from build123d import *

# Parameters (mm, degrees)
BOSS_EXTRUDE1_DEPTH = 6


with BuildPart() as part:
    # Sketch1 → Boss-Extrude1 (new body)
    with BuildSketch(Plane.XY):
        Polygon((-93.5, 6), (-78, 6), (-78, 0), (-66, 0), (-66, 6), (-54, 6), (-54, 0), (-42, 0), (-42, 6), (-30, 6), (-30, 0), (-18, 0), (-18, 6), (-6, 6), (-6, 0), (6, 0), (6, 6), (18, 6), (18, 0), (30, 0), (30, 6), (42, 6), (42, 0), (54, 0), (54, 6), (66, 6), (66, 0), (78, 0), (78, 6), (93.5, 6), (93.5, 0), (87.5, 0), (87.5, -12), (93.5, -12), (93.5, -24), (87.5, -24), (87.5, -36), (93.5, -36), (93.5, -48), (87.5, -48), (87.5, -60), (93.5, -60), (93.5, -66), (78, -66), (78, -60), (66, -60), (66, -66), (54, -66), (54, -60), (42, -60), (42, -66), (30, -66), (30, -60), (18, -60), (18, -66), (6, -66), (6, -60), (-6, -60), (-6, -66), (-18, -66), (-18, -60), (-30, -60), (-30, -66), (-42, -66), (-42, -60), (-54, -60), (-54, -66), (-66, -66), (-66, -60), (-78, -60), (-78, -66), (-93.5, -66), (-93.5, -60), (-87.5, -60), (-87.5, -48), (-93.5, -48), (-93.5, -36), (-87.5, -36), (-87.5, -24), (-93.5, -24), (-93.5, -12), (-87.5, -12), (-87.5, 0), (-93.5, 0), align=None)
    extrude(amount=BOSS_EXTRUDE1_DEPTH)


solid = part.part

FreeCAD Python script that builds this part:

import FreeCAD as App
import Part
import Sketcher
Q = App.Units.Quantity

doc = App.newDocument("Part")
body = doc.addObject("PartDesign::Body", "Body")

# Sketch on XY plane
sketch1 = doc.addObject("Sketcher::SketchObject", "Sketch")
body.addObject(sketch1)
sketch1.AttachmentSupport = (doc.XY_Plane, [""])
sketch1.MapMode = "FlatFace"
sketch1.addGeometry([
    Part.LineSegment(App.Vector(-78, 6, 0), App.Vector(-94, 6, 0)),  # 0
    Part.LineSegment(App.Vector(-94, 6, 0), App.Vector(-94, 0, 0)),  # 1
    Part.LineSegment(App.Vector(-94, 0, 0), App.Vector(-88, 0, 0)),  # 2
    Part.LineSegment(App.Vector(-88, 0, 0), App.Vector(-88, -12, 0)),  # 3
    Part.LineSegment(App.Vector(-88, -12, 0), App.Vector(-94, -12, 0)),  # 4
    Part.LineSegment(App.Vector(-94, -12, 0), App.Vector(-94, -24, 0)),  # 5
    Part.LineSegment(App.Vector(-94, -24, 0), App.Vector(-88, -24, 0)),  # 6
    Part.LineSegment(App.Vector(-88, -24, 0), App.Vector(-88, -36, 0)),  # 7
    Part.LineSegment(App.Vector(-88, -36, 0), App.Vector(-94, -36, 0)),  # 8
    Part.LineSegment(App.Vector(-94, -36, 0), App.Vector(-94, -48, 0)),  # 9
    Part.LineSegment(App.Vector(-94, -48, 0), App.Vector(-88, -48, 0)),  # 10
    Part.LineSegment(App.Vector(-88, -48, 0), App.Vector(-88, -60, 0)),  # 11
    Part.LineSegment(App.Vector(-88, -60, 0), App.Vector(-94, -60, 0)),  # 12
    Part.LineSegment(App.Vector(-94, -60, 0), App.Vector(-94, -66, 0)),  # 13
    Part.LineSegment(App.Vector(-94, -66, 0), App.Vector(-78, -66, 0)),  # 14
    Part.LineSegment(App.Vector(-78, -66, 0), App.Vector(-78, -60, 0)),  # 15
    Part.LineSegment(App.Vector(-78, -60, 0), App.Vector(-66, -60, 0)),  # 16
    Part.LineSegment(App.Vector(-66, -60, 0), App.Vector(-66, -66, 0)),  # 17
    Part.LineSegment(App.Vector(-66, -66, 0), App.Vector(-54, -66, 0)),  # 18
    Part.LineSegment(App.Vector(-54, -66, 0), App.Vector(-54, -60, 0)),  # 19
    Part.LineSegment(App.Vector(-54, -60, 0), App.Vector(-42, -60, 0)),  # 20
    Part.LineSegment(App.Vector(-42, -60, 0), App.Vector(-42, -66, 0)),  # 21
    Part.LineSegment(App.Vector(-42, -66, 0), App.Vector(-30, -66, 0)),  # 22
    Part.LineSegment(App.Vector(-30, -66, 0), App.Vector(-30, -60, 0)),  # 23
    Part.LineSegment(App.Vector(-30, -60, 0), App.Vector(-18, -60, 0)),  # 24
    Part.LineSegment(App.Vector(-18, -60, 0), App.Vector(-18, -66, 0)),  # 25
    Part.LineSegment(App.Vector(-18, -66, 0), App.Vector(-6, -66, 0)),  # 26
    Part.LineSegment(App.Vector(-6, -66, 0), App.Vector(-6, -60, 0)),  # 27
    Part.LineSegment(App.Vector(-6, -60, 0), App.Vector(6, -60, 0)),  # 28
    Part.LineSegment(App.Vector(6, -60, 0), App.Vector(6, -66, 0)),  # 29
    Part.LineSegment(App.Vector(6, -66, 0), App.Vector(18, -66, 0)),  # 30
    Part.LineSegment(App.Vector(18, -66, 0), App.Vector(18, -60, 0)),  # 31
    Part.LineSegment(App.Vector(18, -60, 0), App.Vector(30, -60, 0)),  # 32
    Part.LineSegment(App.Vector(30, -60, 0), App.Vector(30, -66, 0)),  # 33
    Part.LineSegment(App.Vector(30, -66, 0), App.Vector(42, -66, 0)),  # 34
    Part.LineSegment(App.Vector(42, -66, 0), App.Vector(42, -60, 0)),  # 35
    Part.LineSegment(App.Vector(42, -60, 0), App.Vector(54, -60, 0)),  # 36
    Part.LineSegment(App.Vector(54, -60, 0), App.Vector(54, -66, 0)),  # 37
    Part.LineSegment(App.Vector(54, -66, 0), App.Vector(66, -66, 0)),  # 38
    Part.LineSegment(App.Vector(66, -66, 0), App.Vector(66, -60, 0)),  # 39
    Part.LineSegment(App.Vector(66, -60, 0), App.Vector(78, -60, 0)),  # 40
    Part.LineSegment(App.Vector(78, -60, 0), App.Vector(78, -66, 0)),  # 41
    Part.LineSegment(App.Vector(78, -66, 0), App.Vector(94, -66, 0)),  # 42
    Part.LineSegment(App.Vector(94, -66, 0), App.Vector(94, -60, 0)),  # 43
    Part.LineSegment(App.Vector(94, -60, 0), App.Vector(88, -60, 0)),  # 44
    Part.LineSegment(App.Vector(88, -60, 0), App.Vector(88, -48, 0)),  # 45
    Part.LineSegment(App.Vector(88, -48, 0), App.Vector(94, -48, 0)),  # 46
    Part.LineSegment(App.Vector(94, -48, 0), App.Vector(94, -36, 0)),  # 47
    Part.LineSegment(App.Vector(94, -36, 0), App.Vector(88, -36, 0)),  # 48
    Part.LineSegment(App.Vector(88, -36, 0), App.Vector(88, -24, 0)),  # 49
    Part.LineSegment(App.Vector(88, -24, 0), App.Vector(94, -24, 0)),  # 50
    Part.LineSegment(App.Vector(94, -24, 0), App.Vector(94, -12, 0)),  # 51
    Part.LineSegment(App.Vector(94, -12, 0), App.Vector(88, -12, 0)),  # 52
    Part.LineSegment(App.Vector(88, -12, 0), App.Vector(88, 0, 0)),  # 53
    Part.LineSegment(App.Vector(88, 0, 0), App.Vector(94, 0, 0)),  # 54
    Part.LineSegment(App.Vector(94, 0, 0), App.Vector(94, 6, 0)),  # 55
    Part.LineSegment(App.Vector(94, 6, 0), App.Vector(78, 6, 0)),  # 56
    Part.LineSegment(App.Vector(78, 6, 0), App.Vector(78, 0, 0)),  # 57
    Part.LineSegment(App.Vector(78, 0, 0), App.Vector(66, 0, 0)),  # 58
    Part.LineSegment(App.Vector(66, 0, 0), App.Vector(66, 6, 0)),  # 59
    Part.LineSegment(App.Vector(66, 6, 0), App.Vector(54, 6, 0)),  # 60
    Part.LineSegment(App.Vector(54, 6, 0), App.Vector(54, 0, 0)),  # 61
    Part.LineSegment(App.Vector(54, 0, 0), App.Vector(42, 0, 0)),  # 62
    Part.LineSegment(App.Vector(42, 0, 0), App.Vector(42, 6, 0)),  # 63
    Part.LineSegment(App.Vector(42, 6, 0), App.Vector(30, 6, 0)),  # 64
    Part.LineSegment(App.Vector(30, 6, 0), App.Vector(30, 0, 0)),  # 65
    Part.LineSegment(App.Vector(30, 0, 0), App.Vector(18, 0, 0)),  # 66
    Part.LineSegment(App.Vector(18, 0, 0), App.Vector(18, 6, 0)),  # 67
    Part.LineSegment(App.Vector(18, 6, 0), App.Vector(6, 6, 0)),  # 68
    Part.LineSegment(App.Vector(6, 6, 0), App.Vector(6, 0, 0)),  # 69
    Part.LineSegment(App.Vector(6, 0, 0), App.Vector(-6, 0, 0)),  # 70
    Part.LineSegment(App.Vector(-6, 0, 0), App.Vector(-6, 6, 0)),  # 71
    Part.LineSegment(App.Vector(-6, 6, 0), App.Vector(-18, 6, 0)),  # 72
    Part.LineSegment(App.Vector(-18, 6, 0), App.Vector(-18, 0, 0)),  # 73
    Part.LineSegment(App.Vector(-18, 0, 0), App.Vector(-30, 0, 0)),  # 74
    Part.LineSegment(App.Vector(-30, 0, 0), App.Vector(-30, 6, 0)),  # 75
    Part.LineSegment(App.Vector(-30, 6, 0), App.Vector(-42, 6, 0)),  # 76
    Part.LineSegment(App.Vector(-42, 6, 0), App.Vector(-42, 0, 0)),  # 77
    Part.LineSegment(App.Vector(-42, 0, 0), App.Vector(-54, 0, 0)),  # 78
    Part.LineSegment(App.Vector(-54, 0, 0), App.Vector(-54, 6, 0)),  # 79
    Part.LineSegment(App.Vector(-54, 6, 0), App.Vector(-66, 6, 0)),  # 80
    Part.LineSegment(App.Vector(-66, 6, 0), App.Vector(-66, 0, 0)),  # 81
    Part.LineSegment(App.Vector(-66, 0, 0), App.Vector(-78, 0, 0)),  # 82
    Part.LineSegment(App.Vector(-78, 0, 0), App.Vector(-78, 6, 0)),  # 83
], False)
sketch1.addConstraint([
    Sketcher.Constraint("Coincident", 0, 2, 1, 1),
    Sketcher.Constraint("Coincident", 1, 2, 2, 1),
    Sketcher.Constraint("Coincident", 2, 2, 3, 1),
    Sketcher.Constraint("Coincident", 3, 2, 4, 1),
    Sketcher.Constraint("Coincident", 4, 2, 5, 1),
    Sketcher.Constraint("Coincident", 5, 2, 6, 1),
    Sketcher.Constraint("Coincident", 6, 2, 7, 1),
    Sketcher.Constraint("Coincident", 7, 2, 8, 1),
    Sketcher.Constraint("Coincident", 8, 2, 9, 1),
    Sketcher.Constraint("Coincident", 9, 2, 10, 1),
    Sketcher.Constraint("Coincident", 10, 2, 11, 1),
    Sketcher.Constraint("Coincident", 11, 2, 12, 1),
    Sketcher.Constraint("Coincident", 12, 2, 13, 1),
    Sketcher.Constraint("Coincident", 13, 2, 14, 1),
    Sketcher.Constraint("Coincident", 14, 2, 15, 1),
    Sketcher.Constraint("Coincident", 15, 2, 16, 1),
    Sketcher.Constraint("Coincident", 16, 2, 17, 1),
    Sketcher.Constraint("Coincident", 17, 2, 18, 1),
    Sketcher.Constraint("Coincident", 18, 2, 19, 1),
    Sketcher.Constraint("Coincident", 19, 2, 20, 1),
    Sketcher.Constraint("Coincident", 20, 2, 21, 1),
    Sketcher.Constraint("Coincident", 21, 2, 22, 1),
    Sketcher.Constraint("Coincident", 22, 2, 23, 1),
    Sketcher.Constraint("Coincident", 23, 2, 24, 1),
    Sketcher.Constraint("Coincident", 24, 2, 25, 1),
    Sketcher.Constraint("Coincident", 25, 2, 26, 1),
    Sketcher.Constraint("Coincident", 26, 2, 27, 1),
    Sketcher.Constraint("Coincident", 27, 2, 28, 1),
    Sketcher.Constraint("Coincident", 28, 2, 29, 1),
    Sketcher.Constraint("Coincident", 29, 2, 30, 1),
    Sketcher.Constraint("Coincident", 30, 2, 31, 1),
    Sketcher.Constraint("Coincident", 31, 2, 32, 1),
    Sketcher.Constraint("Coincident", 32, 2, 33, 1),
    Sketcher.Constraint("Coincident", 33, 2, 34, 1),
    Sketcher.Constraint("Coincident", 34, 2, 35, 1),
    Sketcher.Constraint("Coincident", 35, 2, 36, 1),
    Sketcher.Constraint("Coincident", 36, 2, 37, 1),
    Sketcher.Constraint("Coincident", 37, 2, 38, 1),
    Sketcher.Constraint("Coincident", 38, 2, 39, 1),
    Sketcher.Constraint("Coincident", 39, 2, 40, 1),
    Sketcher.Constraint("Coincident", 40, 2, 41, 1),
    Sketcher.Constraint("Coincident", 41, 2, 42, 1),
    Sketcher.Constraint("Coincident", 42, 2, 43, 1),
    Sketcher.Constraint("Coincident", 43, 2, 44, 1),
    Sketcher.Constraint("Coincident", 44, 2, 45, 1),
    Sketcher.Constraint("Coincident", 45, 2, 46, 1),
    Sketcher.Constraint("Coincident", 46, 2, 47, 1),
    Sketcher.Constraint("Coincident", 47, 2, 48, 1),
    Sketcher.Constraint("Coincident", 48, 2, 49, 1),
    Sketcher.Constraint("Coincident", 49, 2, 50, 1),
    Sketcher.Constraint("Coincident", 50, 2, 51, 1),
    Sketcher.Constraint("Coincident", 51, 2, 52, 1),
    Sketcher.Constraint("Coincident", 52, 2, 53, 1),
    Sketcher.Constraint("Coincident", 53, 2, 54, 1),
    Sketcher.Constraint("Coincident", 54, 2, 55, 1),
    Sketcher.Constraint("Coincident", 55, 2, 56, 1),
    Sketcher.Constraint("Coincident", 56, 2, 57, 1),
    Sketcher.Constraint("Coincident", 57, 2, 58, 1),
    Sketcher.Constraint("Coincident", 58, 2, 59, 1),
    Sketcher.Constraint("Coincident", 59, 2, 60, 1),
    Sketcher.Constraint("Coincident", 60, 2, 61, 1),
    Sketcher.Constraint("Coincident", 61, 2, 62, 1),
    Sketcher.Constraint("Coincident", 62, 2, 63, 1),
    Sketcher.Constraint("Coincident", 63, 2, 64, 1),
    Sketcher.Constraint("Coincident", 64, 2, 65, 1),
    Sketcher.Constraint("Coincident", 65, 2, 66, 1),
    Sketcher.Constraint("Coincident", 66, 2, 67, 1),
    Sketcher.Constraint("Coincident", 67, 2, 68, 1),
    Sketcher.Constraint("Coincident", 68, 2, 69, 1),
    Sketcher.Constraint("Coincident", 69, 2, 70, 1),
    Sketcher.Constraint("Coincident", 70, 2, 71, 1),
    Sketcher.Constraint("Coincident", 71, 2, 72, 1),
    Sketcher.Constraint("Coincident", 72, 2, 73, 1),
    Sketcher.Constraint("Coincident", 73, 2, 74, 1),
    Sketcher.Constraint("Coincident", 74, 2, 75, 1),
    Sketcher.Constraint("Coincident", 75, 2, 76, 1),
    Sketcher.Constraint("Coincident", 76, 2, 77, 1),
    Sketcher.Constraint("Coincident", 77, 2, 78, 1),
    Sketcher.Constraint("Coincident", 78, 2, 79, 1),
    Sketcher.Constraint("Coincident", 79, 2, 80, 1),
    Sketcher.Constraint("Coincident", 80, 2, 81, 1),
    Sketcher.Constraint("Coincident", 81, 2, 82, 1),
    Sketcher.Constraint("Coincident", 82, 2, 83, 1),
    Sketcher.Constraint("Coincident", 83, 2, 0, 1),
    Sketcher.Constraint("Horizontal", 0),
    Sketcher.Constraint("Vertical", 1),
    Sketcher.Constraint("Horizontal", 2),
    Sketcher.Constraint("Vertical", 3),
    Sketcher.Constraint("Horizontal", 4),
    Sketcher.Constraint("Vertical", 5),
    Sketcher.Constraint("Horizontal", 6),
    Sketcher.Constraint("Vertical", 7),
    Sketcher.Constraint("Horizontal", 8),
    Sketcher.Constraint("Vertical", 9),
    Sketcher.Constraint("Horizontal", 10),
    Sketcher.Constraint("Vertical", 11),
    Sketcher.Constraint("Horizontal", 12),
    Sketcher.Constraint("Vertical", 13),
    Sketcher.Constraint("Horizontal", 14),
    Sketcher.Constraint("Vertical", 15),
    Sketcher.Constraint("Horizontal", 16),
    Sketcher.Constraint("Vertical", 17),
    Sketcher.Constraint("Horizontal", 18),
    Sketcher.Constraint("Vertical", 19),
    Sketcher.Constraint("Horizontal", 20),
    Sketcher.Constraint("Vertical", 21),
    Sketcher.Constraint("Horizontal", 22),
    Sketcher.Constraint("Vertical", 23),
    Sketcher.Constraint("Horizontal", 24),
    Sketcher.Constraint("Vertical", 25),
    Sketcher.Constraint("Horizontal", 26),
    Sketcher.Constraint("Vertical", 27),
    Sketcher.Constraint("Horizontal", 28),
    Sketcher.Constraint("Vertical", 29),
    Sketcher.Constraint("Horizontal", 30),
    Sketcher.Constraint("Vertical", 31),
    Sketcher.Constraint("Horizontal", 32),
    Sketcher.Constraint("Vertical", 33),
    Sketcher.Constraint("Horizontal", 34),
    Sketcher.Constraint("Vertical", 35),
    Sketcher.Constraint("Horizontal", 36),
    Sketcher.Constraint("Vertical", 37),
    Sketcher.Constraint("Horizontal", 38),
    Sketcher.Constraint("Vertical", 39),
    Sketcher.Constraint("Horizontal", 40),
    Sketcher.Constraint("Vertical", 41),
    Sketcher.Constraint("Horizontal", 42),
    Sketcher.Constraint("Vertical", 43),
    Sketcher.Constraint("Horizontal", 44),
    Sketcher.Constraint("Vertical", 45),
    Sketcher.Constraint("Horizontal", 46),
    Sketcher.Constraint("Vertical", 47),
    Sketcher.Constraint("Horizontal", 48),
    Sketcher.Constraint("Vertical", 49),
    Sketcher.Constraint("Horizontal", 50),
    Sketcher.Constraint("Vertical", 51),
    Sketcher.Constraint("Horizontal", 52),
    Sketcher.Constraint("Vertical", 53),
    Sketcher.Constraint("Horizontal", 54),
    Sketcher.Constraint("Vertical", 55),
    Sketcher.Constraint("Horizontal", 56),
    Sketcher.Constraint("Vertical", 57),
    Sketcher.Constraint("Horizontal", 58),
    Sketcher.Constraint("Vertical", 59),
    Sketcher.Constraint("Horizontal", 60),
    Sketcher.Constraint("Vertical", 61),
    Sketcher.Constraint("Horizontal", 62),
    Sketcher.Constraint("Vertical", 63),
    Sketcher.Constraint("Horizontal", 64),
    Sketcher.Constraint("Vertical", 65),
    Sketcher.Constraint("Horizontal", 66),
    Sketcher.Constraint("Vertical", 67),
    Sketcher.Constraint("Horizontal", 68),
    Sketcher.Constraint("Vertical", 69),
    Sketcher.Constraint("Horizontal", 70),
    Sketcher.Constraint("Vertical", 71),
    Sketcher.Constraint("Horizontal", 72),
    Sketcher.Constraint("Vertical", 73),
    Sketcher.Constraint("Horizontal", 74),
    Sketcher.Constraint("Vertical", 75),
    Sketcher.Constraint("Horizontal", 76),
    Sketcher.Constraint("Vertical", 77),
    Sketcher.Constraint("Horizontal", 78),
    Sketcher.Constraint("Vertical", 79),
    Sketcher.Constraint("Horizontal", 80),
    Sketcher.Constraint("Vertical", 81),
    Sketcher.Constraint("Horizontal", 82),
    Sketcher.Constraint("Vertical", 83),
    Sketcher.Constraint("Symmetric", 2, 2, 53, 2, -1, 1),
    Sketcher.Constraint("Symmetric", 69, 2, 70, 2, -1, 1),
    Sketcher.Constraint("Symmetric", 66, 2, 73, 2, -1, 1),
    Sketcher.Constraint("Symmetric", 62, 2, 77, 2, -1, 1),
    Sketcher.Constraint("Symmetric", 58, 2, 81, 2, -1, 1),
    Sketcher.Constraint("Symmetric", 26, 2, 29, 2, -2),
    Sketcher.Constraint("Symmetric", 24, 2, 31, 2, -2),
    Sketcher.Constraint("Symmetric", 22, 2, 33, 2, -2),
    Sketcher.Constraint("Symmetric", 20, 2, 35, 2, -2),
    Sketcher.Constraint("Symmetric", 18, 2, 37, 2, -2),
    Sketcher.Constraint("Symmetric", 16, 2, 39, 2, -2),
    Sketcher.Constraint("Symmetric", 14, 2, 41, 2, -2),
    Sketcher.Constraint("Symmetric", 12, 2, 43, 2, -2),
    Sketcher.Constraint("Symmetric", 10, 2, 45, 2, -2),
    Sketcher.Constraint("Symmetric", 8, 2, 47, 2, -2),
    Sketcher.Constraint("Symmetric", 6, 2, 49, 2, -2),
    Sketcher.Constraint("Symmetric", 4, 2, 51, 2, -2),
    Sketcher.Constraint("Symmetric", 1, 2, 54, 2, -2),
    Sketcher.Constraint("Symmetric", 65, 2, 74, 2, -2),
    Sketcher.Constraint("Symmetric", 61, 2, 78, 2, -2),
    Sketcher.Constraint("Symmetric", 57, 2, 82, 2, -2),
    Sketcher.Constraint("Horizontal", 12, 2, 15, 2),
    Sketcher.Constraint("Horizontal", 14, 2, 17, 2),
    Sketcher.Constraint("Horizontal", 16, 2, 19, 2),
    Sketcher.Constraint("Horizontal", 18, 2, 21, 2),
    Sketcher.Constraint("Horizontal", 20, 2, 23, 2),
    Sketcher.Constraint("Horizontal", 22, 2, 25, 2),
    Sketcher.Constraint("Horizontal", 24, 2, 27, 2),
    Sketcher.Constraint("Horizontal", 0, 2, 55, 2),
    Sketcher.Constraint("Horizontal", 56, 2, 59, 2),
    Sketcher.Constraint("Horizontal", 60, 2, 63, 2),
    Sketcher.Constraint("Horizontal", 64, 2, 67, 2),
    Sketcher.Constraint("Horizontal", 68, 2, 71, 2),
    Sketcher.Constraint("Horizontal", 72, 2, 75, 2),
    Sketcher.Constraint("Horizontal", 76, 2, 79, 2),
    Sketcher.Constraint("Vertical", 1, 2, 4, 2),
    Sketcher.Constraint("Vertical", 3, 2, 6, 2),
    Sketcher.Constraint("Vertical", 5, 2, 8, 2),
    Sketcher.Constraint("Vertical", 7, 2, 10, 2),
    Sketcher.Constraint("Vertical", 9, 2, 12, 2),
    Sketcher.Constraint("Vertical", 41, 2, 56, 2),
    Sketcher.Constraint("Vertical", 39, 2, 58, 2),
    Sketcher.Constraint("Vertical", 37, 2, 60, 2),
    Sketcher.Constraint("Vertical", 35, 2, 62, 2),
    Sketcher.Constraint("Vertical", 33, 2, 64, 2),
    Sketcher.Constraint("Vertical", 31, 2, 66, 2),
    Sketcher.Constraint("Vertical", 29, 2, 68, 2),
    Sketcher.Constraint("Equal", 16, 18),
    Sketcher.Constraint("Equal", 18, 20),
    Sketcher.Constraint("Equal", 20, 22),
    Sketcher.Constraint("Equal", 22, 24),
    Sketcher.Constraint("Equal", 24, 26),
    Sketcher.Constraint("Equal", 26, 28),
    Sketcher.Constraint("Equal", 54, 1),
    Sketcher.Constraint("Equal", 82, 3),
    Sketcher.Constraint("Equal", 3, 5),
    Sketcher.Constraint("Equal", 5, 7),
    Sketcher.Constraint("Equal", 7, 9),
    Sketcher.Constraint("Equal", 9, 11),
    Sketcher.Constraint("Equal", 1, 13),
    Sketcher.Constraint("DistanceX", 2, 1, 2, 2, Q("6 mm")),
    Sketcher.Constraint("DistanceX", 16, 1, 16, 2, Q("12 mm")),
    Sketcher.Constraint("DistanceX", 0, 2, 0, 1, Q("15.5 mm")),
])
pad1 = doc.addObject("PartDesign::Pad", "Pad")
body.addObject(pad1)
pad1.Profile = sketch1
pad1.Length = 6

doc.recompute()
